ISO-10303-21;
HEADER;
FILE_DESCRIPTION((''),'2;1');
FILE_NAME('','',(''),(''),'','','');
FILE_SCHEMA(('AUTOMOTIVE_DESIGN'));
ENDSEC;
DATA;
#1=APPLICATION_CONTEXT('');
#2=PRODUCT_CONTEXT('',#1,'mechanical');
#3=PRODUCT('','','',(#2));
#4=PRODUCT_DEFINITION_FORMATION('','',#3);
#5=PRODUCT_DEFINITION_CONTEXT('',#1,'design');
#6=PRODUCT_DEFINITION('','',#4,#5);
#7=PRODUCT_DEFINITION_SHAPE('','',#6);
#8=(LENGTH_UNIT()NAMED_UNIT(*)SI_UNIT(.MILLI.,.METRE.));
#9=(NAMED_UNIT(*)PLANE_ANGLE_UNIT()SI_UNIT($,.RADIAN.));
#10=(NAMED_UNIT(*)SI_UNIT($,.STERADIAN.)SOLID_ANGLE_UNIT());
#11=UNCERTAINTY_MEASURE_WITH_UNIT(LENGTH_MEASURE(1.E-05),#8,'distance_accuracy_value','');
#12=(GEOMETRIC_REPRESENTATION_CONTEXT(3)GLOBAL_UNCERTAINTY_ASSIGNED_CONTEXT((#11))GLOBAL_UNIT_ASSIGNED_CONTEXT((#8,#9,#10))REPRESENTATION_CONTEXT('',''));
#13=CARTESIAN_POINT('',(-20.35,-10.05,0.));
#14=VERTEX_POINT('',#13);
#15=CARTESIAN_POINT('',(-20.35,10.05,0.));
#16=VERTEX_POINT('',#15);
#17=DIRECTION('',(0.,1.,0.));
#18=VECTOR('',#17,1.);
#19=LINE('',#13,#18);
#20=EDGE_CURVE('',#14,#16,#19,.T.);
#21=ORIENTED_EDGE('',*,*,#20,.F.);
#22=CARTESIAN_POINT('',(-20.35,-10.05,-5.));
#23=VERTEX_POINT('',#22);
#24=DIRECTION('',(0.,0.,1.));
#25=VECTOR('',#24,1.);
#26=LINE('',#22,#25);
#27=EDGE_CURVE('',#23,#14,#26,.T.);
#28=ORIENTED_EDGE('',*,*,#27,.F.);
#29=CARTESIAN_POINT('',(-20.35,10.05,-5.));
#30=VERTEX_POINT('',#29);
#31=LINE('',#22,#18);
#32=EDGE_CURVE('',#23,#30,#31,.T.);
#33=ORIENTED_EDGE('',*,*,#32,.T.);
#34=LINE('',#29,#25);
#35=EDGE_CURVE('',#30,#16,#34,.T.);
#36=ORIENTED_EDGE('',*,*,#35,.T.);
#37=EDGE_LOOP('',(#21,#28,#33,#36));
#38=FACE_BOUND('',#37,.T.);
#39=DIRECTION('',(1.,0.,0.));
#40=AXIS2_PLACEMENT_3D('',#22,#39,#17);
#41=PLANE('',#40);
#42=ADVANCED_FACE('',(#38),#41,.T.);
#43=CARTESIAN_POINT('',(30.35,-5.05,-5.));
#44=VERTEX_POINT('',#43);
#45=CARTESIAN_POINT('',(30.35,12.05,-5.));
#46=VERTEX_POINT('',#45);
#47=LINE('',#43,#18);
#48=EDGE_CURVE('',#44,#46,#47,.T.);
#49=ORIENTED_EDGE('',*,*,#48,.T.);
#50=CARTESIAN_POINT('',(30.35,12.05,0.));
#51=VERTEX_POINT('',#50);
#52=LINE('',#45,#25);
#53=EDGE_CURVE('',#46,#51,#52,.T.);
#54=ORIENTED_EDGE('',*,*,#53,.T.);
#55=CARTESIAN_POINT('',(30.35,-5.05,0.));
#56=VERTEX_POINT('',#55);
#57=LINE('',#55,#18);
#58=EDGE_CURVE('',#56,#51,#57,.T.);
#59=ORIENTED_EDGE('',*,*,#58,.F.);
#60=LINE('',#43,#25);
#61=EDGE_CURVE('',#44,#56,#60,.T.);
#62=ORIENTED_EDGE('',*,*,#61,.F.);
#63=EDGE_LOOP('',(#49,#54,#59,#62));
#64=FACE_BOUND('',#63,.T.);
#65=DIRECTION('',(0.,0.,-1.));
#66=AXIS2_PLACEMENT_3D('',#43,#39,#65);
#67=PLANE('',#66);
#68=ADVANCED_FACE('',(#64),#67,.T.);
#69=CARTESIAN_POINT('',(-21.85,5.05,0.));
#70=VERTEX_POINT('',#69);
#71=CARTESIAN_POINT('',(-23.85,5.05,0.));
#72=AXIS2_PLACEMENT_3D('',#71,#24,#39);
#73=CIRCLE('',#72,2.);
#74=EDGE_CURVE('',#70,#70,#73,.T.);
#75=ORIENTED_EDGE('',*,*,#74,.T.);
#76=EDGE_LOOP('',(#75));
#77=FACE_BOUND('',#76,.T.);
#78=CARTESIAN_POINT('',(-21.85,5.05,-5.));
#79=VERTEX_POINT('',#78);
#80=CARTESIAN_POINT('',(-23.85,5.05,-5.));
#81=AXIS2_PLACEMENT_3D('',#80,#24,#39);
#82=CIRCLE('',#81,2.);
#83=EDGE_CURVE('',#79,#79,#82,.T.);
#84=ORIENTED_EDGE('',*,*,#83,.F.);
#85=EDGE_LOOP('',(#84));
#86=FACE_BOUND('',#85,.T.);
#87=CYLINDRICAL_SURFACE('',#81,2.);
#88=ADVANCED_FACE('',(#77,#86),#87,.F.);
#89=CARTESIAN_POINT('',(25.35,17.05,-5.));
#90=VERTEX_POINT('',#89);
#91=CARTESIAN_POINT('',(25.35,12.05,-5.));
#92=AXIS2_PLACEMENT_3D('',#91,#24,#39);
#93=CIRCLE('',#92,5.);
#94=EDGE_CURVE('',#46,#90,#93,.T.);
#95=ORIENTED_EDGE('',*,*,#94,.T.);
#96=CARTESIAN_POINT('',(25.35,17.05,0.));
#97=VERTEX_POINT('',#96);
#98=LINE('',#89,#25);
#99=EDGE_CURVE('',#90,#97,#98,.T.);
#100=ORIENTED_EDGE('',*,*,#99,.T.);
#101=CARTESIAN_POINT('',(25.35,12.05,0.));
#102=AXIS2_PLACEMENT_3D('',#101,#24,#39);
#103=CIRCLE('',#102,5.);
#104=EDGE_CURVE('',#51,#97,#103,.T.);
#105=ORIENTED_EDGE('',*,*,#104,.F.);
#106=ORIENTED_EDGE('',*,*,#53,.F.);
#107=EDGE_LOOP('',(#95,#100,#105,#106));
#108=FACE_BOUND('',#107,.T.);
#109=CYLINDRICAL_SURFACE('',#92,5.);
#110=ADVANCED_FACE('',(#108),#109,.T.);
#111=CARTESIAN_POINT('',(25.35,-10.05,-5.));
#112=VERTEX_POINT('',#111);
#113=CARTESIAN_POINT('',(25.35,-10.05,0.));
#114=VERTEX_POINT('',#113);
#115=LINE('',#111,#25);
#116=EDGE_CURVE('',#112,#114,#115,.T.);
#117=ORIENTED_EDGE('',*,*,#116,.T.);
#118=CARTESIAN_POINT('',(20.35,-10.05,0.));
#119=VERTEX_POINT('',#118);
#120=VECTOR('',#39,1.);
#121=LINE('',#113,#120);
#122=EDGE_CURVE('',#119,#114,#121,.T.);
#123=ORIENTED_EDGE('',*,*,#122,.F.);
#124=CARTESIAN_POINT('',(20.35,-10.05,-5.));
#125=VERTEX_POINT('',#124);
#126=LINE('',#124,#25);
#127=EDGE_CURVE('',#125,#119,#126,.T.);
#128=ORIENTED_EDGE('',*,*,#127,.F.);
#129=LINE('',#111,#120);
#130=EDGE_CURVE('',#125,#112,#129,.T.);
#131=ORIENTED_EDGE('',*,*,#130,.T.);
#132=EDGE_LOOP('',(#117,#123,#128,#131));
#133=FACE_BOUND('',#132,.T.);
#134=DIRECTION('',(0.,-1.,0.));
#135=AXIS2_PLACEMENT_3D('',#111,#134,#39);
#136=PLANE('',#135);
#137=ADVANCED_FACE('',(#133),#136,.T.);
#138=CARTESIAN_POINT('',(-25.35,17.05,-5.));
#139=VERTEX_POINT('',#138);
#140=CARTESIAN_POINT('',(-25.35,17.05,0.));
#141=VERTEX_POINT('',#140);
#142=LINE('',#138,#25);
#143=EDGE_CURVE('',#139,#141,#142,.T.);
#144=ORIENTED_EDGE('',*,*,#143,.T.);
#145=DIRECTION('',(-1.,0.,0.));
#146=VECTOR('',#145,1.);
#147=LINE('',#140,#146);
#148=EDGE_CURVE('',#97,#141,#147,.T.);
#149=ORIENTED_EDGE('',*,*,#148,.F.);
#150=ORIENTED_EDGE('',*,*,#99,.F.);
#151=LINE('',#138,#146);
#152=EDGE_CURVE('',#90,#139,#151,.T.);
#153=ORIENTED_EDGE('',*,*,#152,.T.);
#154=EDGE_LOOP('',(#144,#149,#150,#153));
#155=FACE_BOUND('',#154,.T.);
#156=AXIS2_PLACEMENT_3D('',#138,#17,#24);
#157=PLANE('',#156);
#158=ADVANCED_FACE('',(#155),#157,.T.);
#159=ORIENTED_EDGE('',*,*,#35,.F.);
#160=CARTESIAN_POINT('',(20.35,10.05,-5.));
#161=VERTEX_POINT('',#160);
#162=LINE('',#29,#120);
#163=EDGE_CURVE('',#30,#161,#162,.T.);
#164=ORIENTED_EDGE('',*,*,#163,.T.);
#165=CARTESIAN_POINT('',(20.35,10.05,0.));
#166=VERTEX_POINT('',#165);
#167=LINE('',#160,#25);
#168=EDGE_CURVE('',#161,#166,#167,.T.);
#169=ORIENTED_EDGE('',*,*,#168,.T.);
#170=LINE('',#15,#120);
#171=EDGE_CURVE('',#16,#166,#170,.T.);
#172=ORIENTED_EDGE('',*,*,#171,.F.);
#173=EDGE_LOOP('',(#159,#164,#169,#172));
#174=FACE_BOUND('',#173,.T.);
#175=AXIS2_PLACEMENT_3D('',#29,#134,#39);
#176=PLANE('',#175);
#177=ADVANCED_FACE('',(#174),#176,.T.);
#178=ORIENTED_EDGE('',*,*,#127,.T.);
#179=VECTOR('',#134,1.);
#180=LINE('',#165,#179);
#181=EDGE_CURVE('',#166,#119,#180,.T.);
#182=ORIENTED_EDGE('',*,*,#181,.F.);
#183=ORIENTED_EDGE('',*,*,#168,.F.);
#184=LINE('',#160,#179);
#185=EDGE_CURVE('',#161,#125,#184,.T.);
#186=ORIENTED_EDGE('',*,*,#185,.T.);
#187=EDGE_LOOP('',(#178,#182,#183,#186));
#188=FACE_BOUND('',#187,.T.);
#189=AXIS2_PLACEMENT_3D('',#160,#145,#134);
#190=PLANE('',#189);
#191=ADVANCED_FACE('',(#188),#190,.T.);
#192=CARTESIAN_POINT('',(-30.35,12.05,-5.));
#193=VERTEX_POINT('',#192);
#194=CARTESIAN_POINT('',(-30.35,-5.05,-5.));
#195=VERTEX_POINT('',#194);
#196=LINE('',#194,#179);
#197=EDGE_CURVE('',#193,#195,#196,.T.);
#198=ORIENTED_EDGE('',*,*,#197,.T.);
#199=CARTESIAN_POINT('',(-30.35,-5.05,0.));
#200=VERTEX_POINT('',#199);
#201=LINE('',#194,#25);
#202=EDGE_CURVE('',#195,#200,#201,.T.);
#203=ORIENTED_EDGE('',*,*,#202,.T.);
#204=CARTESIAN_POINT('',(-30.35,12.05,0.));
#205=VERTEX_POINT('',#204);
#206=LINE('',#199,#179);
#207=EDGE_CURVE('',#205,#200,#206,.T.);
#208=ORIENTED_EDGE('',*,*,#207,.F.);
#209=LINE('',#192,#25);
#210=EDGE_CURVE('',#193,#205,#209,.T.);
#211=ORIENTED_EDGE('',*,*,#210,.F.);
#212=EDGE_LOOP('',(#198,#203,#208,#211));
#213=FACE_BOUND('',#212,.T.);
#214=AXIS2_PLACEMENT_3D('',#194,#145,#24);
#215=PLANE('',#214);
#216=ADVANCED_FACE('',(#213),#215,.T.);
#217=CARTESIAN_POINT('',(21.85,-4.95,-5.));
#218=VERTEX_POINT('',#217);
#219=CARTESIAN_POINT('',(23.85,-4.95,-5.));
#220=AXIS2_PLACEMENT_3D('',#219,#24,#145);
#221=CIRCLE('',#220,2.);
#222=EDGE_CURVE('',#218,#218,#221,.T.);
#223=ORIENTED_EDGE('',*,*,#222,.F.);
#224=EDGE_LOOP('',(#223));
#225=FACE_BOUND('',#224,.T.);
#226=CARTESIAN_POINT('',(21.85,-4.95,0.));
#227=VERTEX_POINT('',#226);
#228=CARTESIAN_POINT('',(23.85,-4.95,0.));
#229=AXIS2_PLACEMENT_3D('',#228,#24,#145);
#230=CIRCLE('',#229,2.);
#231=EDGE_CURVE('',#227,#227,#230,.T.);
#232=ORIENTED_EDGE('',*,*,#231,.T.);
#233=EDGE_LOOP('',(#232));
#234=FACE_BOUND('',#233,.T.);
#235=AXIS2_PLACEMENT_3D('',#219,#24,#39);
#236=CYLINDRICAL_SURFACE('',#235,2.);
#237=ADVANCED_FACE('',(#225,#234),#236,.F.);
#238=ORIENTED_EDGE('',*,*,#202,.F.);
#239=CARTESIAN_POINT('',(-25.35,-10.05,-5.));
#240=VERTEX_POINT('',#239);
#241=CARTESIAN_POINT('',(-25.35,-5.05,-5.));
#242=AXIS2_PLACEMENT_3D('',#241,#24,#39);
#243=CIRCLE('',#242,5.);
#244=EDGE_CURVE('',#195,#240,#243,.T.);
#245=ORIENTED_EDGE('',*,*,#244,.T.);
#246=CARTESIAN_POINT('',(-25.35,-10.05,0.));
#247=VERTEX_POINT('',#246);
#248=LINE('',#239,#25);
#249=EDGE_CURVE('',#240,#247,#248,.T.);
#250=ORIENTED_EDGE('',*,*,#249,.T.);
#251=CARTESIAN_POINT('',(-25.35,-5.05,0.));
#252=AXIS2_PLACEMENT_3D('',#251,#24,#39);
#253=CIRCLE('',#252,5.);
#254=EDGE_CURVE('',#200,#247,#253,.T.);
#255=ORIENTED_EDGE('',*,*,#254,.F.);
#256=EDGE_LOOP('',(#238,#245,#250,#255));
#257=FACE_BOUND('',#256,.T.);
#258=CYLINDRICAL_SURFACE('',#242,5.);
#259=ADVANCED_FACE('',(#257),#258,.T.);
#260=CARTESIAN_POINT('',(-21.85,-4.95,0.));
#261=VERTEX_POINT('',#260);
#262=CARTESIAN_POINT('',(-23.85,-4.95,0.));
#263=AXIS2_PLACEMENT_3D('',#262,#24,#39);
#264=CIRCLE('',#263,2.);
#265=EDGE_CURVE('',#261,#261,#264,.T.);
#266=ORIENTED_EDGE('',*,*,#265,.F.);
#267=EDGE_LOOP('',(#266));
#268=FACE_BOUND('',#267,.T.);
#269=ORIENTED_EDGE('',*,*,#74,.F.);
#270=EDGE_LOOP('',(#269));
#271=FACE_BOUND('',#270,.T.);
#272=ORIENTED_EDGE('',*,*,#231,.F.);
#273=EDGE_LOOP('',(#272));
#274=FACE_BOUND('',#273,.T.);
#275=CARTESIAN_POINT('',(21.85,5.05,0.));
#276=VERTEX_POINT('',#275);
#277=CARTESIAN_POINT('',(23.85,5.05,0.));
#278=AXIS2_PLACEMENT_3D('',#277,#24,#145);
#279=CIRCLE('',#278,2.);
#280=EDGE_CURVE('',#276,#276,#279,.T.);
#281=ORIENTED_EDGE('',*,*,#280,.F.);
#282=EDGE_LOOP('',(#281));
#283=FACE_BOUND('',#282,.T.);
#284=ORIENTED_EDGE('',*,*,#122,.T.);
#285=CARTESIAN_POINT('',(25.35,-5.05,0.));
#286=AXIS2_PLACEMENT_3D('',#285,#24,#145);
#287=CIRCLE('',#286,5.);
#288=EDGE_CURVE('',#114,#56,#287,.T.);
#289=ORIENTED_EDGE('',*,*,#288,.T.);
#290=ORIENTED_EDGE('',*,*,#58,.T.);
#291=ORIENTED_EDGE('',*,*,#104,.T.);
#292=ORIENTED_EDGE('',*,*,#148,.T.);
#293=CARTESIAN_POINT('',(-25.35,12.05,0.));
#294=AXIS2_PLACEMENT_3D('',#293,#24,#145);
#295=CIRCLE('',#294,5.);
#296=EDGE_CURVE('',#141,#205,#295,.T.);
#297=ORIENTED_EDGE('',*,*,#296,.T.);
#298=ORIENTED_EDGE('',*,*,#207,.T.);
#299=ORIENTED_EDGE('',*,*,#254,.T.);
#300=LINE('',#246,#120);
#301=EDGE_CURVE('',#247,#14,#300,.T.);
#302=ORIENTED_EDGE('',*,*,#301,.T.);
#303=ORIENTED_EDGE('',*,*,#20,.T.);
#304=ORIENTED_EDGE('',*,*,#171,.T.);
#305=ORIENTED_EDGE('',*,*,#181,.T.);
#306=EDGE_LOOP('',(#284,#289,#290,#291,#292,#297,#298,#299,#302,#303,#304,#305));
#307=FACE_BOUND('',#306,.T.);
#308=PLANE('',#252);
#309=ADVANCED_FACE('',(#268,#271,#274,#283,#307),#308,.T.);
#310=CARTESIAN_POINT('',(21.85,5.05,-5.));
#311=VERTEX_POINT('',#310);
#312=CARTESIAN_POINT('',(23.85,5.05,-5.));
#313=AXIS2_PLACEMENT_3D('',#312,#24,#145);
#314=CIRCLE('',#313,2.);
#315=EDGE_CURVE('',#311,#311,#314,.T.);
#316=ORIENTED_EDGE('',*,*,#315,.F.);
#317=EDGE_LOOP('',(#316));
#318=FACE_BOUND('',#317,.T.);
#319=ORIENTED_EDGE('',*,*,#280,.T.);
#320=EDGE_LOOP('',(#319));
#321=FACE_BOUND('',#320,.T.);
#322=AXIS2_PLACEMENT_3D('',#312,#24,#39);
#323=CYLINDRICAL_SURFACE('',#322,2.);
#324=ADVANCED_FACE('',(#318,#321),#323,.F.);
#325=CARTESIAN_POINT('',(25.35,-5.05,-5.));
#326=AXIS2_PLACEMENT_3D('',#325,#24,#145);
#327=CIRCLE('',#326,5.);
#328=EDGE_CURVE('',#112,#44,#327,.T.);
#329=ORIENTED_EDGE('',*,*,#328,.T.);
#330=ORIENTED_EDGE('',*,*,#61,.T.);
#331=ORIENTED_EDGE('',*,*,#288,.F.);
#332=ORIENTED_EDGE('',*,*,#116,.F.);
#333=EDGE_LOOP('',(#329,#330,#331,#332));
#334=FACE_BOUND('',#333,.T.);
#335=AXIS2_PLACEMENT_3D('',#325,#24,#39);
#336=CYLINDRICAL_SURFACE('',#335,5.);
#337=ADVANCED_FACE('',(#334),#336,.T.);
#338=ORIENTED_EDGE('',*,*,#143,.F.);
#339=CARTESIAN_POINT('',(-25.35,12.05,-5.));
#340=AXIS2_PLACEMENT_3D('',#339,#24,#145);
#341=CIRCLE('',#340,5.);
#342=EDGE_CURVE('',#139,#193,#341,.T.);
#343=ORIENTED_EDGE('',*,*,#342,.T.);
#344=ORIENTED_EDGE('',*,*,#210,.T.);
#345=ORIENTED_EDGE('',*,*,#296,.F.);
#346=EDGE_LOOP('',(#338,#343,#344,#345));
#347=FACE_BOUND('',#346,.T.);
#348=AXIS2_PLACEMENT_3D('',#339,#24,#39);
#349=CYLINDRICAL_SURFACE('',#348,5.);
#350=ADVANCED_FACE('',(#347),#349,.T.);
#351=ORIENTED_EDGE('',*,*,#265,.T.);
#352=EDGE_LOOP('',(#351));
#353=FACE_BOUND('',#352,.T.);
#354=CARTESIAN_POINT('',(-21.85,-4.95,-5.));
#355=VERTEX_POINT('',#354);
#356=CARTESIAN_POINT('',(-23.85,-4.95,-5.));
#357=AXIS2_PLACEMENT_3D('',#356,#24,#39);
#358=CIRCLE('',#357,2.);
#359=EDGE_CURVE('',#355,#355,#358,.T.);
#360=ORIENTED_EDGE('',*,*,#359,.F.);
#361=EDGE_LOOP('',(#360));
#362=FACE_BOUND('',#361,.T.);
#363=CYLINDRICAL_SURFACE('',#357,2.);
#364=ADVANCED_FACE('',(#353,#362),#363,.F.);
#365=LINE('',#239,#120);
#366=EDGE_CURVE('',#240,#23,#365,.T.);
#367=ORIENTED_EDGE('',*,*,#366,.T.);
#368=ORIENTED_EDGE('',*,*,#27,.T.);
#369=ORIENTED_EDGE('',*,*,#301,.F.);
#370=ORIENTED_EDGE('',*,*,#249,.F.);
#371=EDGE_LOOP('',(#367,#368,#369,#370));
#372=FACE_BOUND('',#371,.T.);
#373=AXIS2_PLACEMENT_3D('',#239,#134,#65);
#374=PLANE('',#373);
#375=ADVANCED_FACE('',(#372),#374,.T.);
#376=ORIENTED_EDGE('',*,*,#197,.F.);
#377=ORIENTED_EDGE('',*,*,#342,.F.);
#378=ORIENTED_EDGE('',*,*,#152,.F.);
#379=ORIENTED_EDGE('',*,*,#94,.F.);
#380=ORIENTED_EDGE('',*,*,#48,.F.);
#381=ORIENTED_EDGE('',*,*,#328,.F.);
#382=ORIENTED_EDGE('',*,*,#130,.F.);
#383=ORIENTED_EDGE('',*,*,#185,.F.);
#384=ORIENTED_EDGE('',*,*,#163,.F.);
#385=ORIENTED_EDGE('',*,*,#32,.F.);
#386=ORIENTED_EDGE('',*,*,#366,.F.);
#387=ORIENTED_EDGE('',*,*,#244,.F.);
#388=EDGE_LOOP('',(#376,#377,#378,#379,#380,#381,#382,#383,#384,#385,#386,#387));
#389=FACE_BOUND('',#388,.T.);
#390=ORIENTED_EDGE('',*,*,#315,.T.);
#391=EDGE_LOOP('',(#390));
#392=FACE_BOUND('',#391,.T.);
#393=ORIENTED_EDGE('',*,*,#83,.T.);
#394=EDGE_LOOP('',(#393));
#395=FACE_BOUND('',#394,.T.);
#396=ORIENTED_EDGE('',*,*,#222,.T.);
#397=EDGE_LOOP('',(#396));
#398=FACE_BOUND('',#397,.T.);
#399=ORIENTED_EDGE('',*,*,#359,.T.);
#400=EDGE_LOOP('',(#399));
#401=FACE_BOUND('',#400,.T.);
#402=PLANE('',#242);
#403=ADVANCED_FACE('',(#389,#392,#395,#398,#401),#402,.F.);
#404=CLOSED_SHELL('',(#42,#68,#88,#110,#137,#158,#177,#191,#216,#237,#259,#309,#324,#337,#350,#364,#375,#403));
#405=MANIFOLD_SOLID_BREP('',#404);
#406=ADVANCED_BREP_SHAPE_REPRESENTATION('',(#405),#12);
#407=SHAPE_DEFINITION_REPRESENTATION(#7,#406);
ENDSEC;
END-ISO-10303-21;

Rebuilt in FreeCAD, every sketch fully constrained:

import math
import FreeCAD as App
import Part
import Sketcher
from FreeCAD import Vector
Q = App.Units.Quantity

doc = App.newDocument("Part")
body = doc.addObject("PartDesign::Body", "Body")

sketch1 = body.newObject("Sketcher::SketchObject", "Sketch")
sketch1.AttachmentSupport = (doc.getObject("XY_Plane"), [""])
sketch1.MapMode = "FlatFace"
sketch1.addGeometry(Part.LineSegment(Vector(-20.35, -10.05, 0), Vector(-20.35, 10.05, 0)), False)
sketch1.addGeometry(Part.LineSegment(Vector(-20.35, 10.05, 0), Vector(20.35, 10.05, 0)), False)
sketch1.addGeometry(Part.LineSegment(Vector(20.35, 10.05, 0), Vector(20.35, -10.05, 0)), False)
sketch1.addGeometry(Part.LineSegment(Vector(20.35, -10.05, 0), Vector(25.35, -10.05, 0)), False)
sketch1.addGeometry(Part.ArcOfCircle(Part.Circle(Vector(25.35, -5.05, 0), Vector(0, 0, 1), 5), math.radians(-90), math.radians(0)), False)
sketch1.addGeometry(Part.LineSegment(Vector(30.35, -5.05, 0), Vector(30.35, 12.05, 0)), False)
sketch1.addGeometry(Part.ArcOfCircle(Part.Circle(Vector(25.35, 12.05, 0), Vector(0, 0, 1), 5), math.radians(0), math.radians(90)), False)
sketch1.addGeometry(Part.LineSegment(Vector(25.35, 17.05, 0), Vector(-25.35, 17.05, 0)), False)
sketch1.addGeometry(Part.ArcOfCircle(Part.Circle(Vector(-25.35, 12.05, 0), Vector(0, 0, 1), 5), math.radians(90), math.radians(180)), False)
sketch1.addGeometry(Part.LineSegment(Vector(-30.35, 12.05, 0), Vector(-30.35, -5.05, 0)), False)
sketch1.addGeometry(Part.ArcOfCircle(Part.Circle(Vector(-25.35, -5.05, 0), Vector(0, 0, 1), 5), math.radians(180), math.radians(270)), False)
sketch1.addGeometry(Part.LineSegment(Vector(-25.35, -10.05, 0), Vector(-20.35, -10.05, 0)), False)
sketch1.addGeometry(Part.Circle(Vector(23.85, -4.95, 0), Vector(0, 0, 1), 2), False)
sketch1.addGeometry(Part.Circle(Vector(23.85, 5.05, 0), Vector(0, 0, 1), 2), False)
sketch1.addGeometry(Part.Circle(Vector(-23.85, -4.95, 0), Vector(0, 0, 1), 2), False)
sketch1.addGeometry(Part.Circle(Vector(-23.85, 5.05, 0), Vector(0, 0, 1), 2), False)
sketch1.addConstraint(Sketcher.Constraint("Coincident", 0, 2, 1, 1))
sketch1.addConstraint(Sketcher.Constraint("Coincident", 1, 2, 2, 1))
sketch1.addConstraint(Sketcher.Constraint("Coincident", 2, 2, 3, 1))
sketch1.addConstraint(Sketcher.Constraint("Tangent", 3, 2, 4, 1))
sketch1.addConstraint(Sketcher.Constraint("Tangent", 4, 2, 5, 1))
sketch1.addConstraint(Sketcher.Constraint("Tangent", 5, 2, 6, 1))
sketch1.addConstraint(Sketcher.Constraint("Tangent", 6, 2, 7, 1))
sketch1.addConstraint(Sketcher.Constraint("Tangent", 7, 2, 8, 1))
sketch1.addConstraint(Sketcher.Constraint("Tangent", 8, 2, 9, 1))
sketch1.addConstraint(Sketcher.Constraint("Tangent", 9, 2, 10, 1))
sketch1.addConstraint(Sketcher.Constraint("Tangent", 10, 2, 11, 1))
sketch1.addConstraint(Sketcher.Constraint("Coincident", 11, 2, 0, 1))
sketch1.addConstraint(Sketcher.Constraint("Vertical", 0))
sketch1.addConstraint(Sketcher.Constraint("Horizontal", 1))
sketch1.addConstraint(Sketcher.Constraint("Vertical", 2))
sketch1.addConstraint(Sketcher.Constraint("Horizontal", 3))
sketch1.addConstraint(Sketcher.Constraint("Vertical", 5))
sketch1.addConstraint(Sketcher.Constraint("Horizontal", 7))
sketch1.addConstraint(Sketcher.Constraint("Vertical", 9))
sketch1.addConstraint(Sketcher.Constraint("Horizontal", 11))
sketch1.addConstraint(Sketcher.Constraint("Equal", 4, 6))
sketch1.addConstraint(Sketcher.Constraint("Equal", 6, 8))
sketch1.addConstraint(Sketcher.Constraint("Equal", 8, 10))
sketch1.addConstraint(Sketcher.Constraint("Equal", 12, 13))
sketch1.addConstraint(Sketcher.Constraint("Equal", 13, 14))
sketch1.addConstraint(Sketcher.Constraint("Equal", 14, 15))
sketch1.addConstraint(Sketcher.Constraint("Symmetric", 0, 2, 2, 2, -1, 1))
sketch1.addConstraint(Sketcher.Constraint("Symmetric", 4, 3, 10, 3, -2))
sketch1.addConstraint(Sketcher.Constraint("Symmetric", 12, 3, 14, 3, -2))
sketch1.addConstraint(Sketcher.Constraint("Symmetric", 13, 3, 15, 3, -2))
sketch1.addConstraint(Sketcher.Constraint("Vertical", 12, 3, 13, 3))
sketch1.addConstraint(Sketcher.Constraint("Diameter", 12, Q("4 mm")))
sketch1.addConstraint(Sketcher.Constraint("Radius", 4, Q("5 mm")))
sketch1.addConstraint(Sketcher.Constraint("DistanceX", 3, 1, 3, 2, Q("5 mm")))
sketch1.addConstraint(Sketcher.Constraint("DistanceX", 1, 1, 1, 2, Q("40.7 mm")))
sketch1.addConstraint(Sketcher.Constraint("DistanceY", 0, 1, 0, 2, Q("20.1 mm")))
sketch1.addConstraint(Sketcher.Constraint("DistanceY", 5, 1, 5, 2, Q("17.1 mm")))
sketch1.addConstraint(Sketcher.Constraint("DistanceY", 12, 3, 6, 3, Q("17 mm")))
sketch1.addConstraint(Sketcher.Constraint("DistanceY", 13, 3, 6, 3, Q("7 mm")))
sketch1.addConstraint(Sketcher.Constraint("DistanceX", 12, 3, 4, 3, Q("1.5 mm")))
pad1 = body.newObject("PartDesign::Pad", "Pad")
pad1.Profile = sketch1
pad1.Length = 5
pad1.Reversed = True

doc.recompute()
